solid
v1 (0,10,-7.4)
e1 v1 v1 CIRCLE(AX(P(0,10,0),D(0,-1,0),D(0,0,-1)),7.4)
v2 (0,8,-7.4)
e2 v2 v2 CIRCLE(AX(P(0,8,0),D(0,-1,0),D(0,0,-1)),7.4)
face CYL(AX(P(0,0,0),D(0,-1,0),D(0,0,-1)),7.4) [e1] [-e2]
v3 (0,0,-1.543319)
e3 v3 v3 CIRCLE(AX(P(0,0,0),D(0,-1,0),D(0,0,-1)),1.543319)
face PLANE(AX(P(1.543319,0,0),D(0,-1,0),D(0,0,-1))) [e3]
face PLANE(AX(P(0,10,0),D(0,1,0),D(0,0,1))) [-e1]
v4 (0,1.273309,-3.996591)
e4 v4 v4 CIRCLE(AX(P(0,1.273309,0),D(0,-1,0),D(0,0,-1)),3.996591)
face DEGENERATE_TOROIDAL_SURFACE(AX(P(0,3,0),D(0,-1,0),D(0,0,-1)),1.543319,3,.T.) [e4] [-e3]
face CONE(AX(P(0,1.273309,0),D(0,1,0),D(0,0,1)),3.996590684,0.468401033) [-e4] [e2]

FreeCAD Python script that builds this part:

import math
import FreeCAD as App
import Part
import Sketcher

doc = App.newDocument("Part")
params = doc.addObject("Spreadsheet::Sheet", "Params")
for row, (alias, value) in enumerate([
    ("sketch1_radius", "3 mm"),
    ("sketch1_height", "10 mm"),
    ("sketch1_height2", "2 mm"),
    ("sketch1_width", "7.4 mm"),
    ("revolution_angle", "360 deg"),
], start=1):
    params.set(f"A{row}", alias)
    params.set(f"B{row}", "=" + value)
    params.setAlias(f"B{row}", alias)

body = doc.addObject("PartDesign::Body", "Body")

sketch1 = body.newObject("Sketcher::SketchObject", "Sketch")
sketch1.AttachmentSupport = (doc.getObject("XY_Plane"), [""])
sketch1.MapMode = "FlatFace"
sketch1.addGeometry(Part.LineSegment(App.Vector(0, 10, 0), App.Vector(0, 0, 0)), False)
sketch1.addGeometry(Part.LineSegment(App.Vector(0, 0, 0), App.Vector(1.543319, 0, 0)), False)
sketch1.addGeometry(Part.ArcOfCircle(Part.Circle(App.Vector(1.543319, 3, 0), App.Vector(0, 0, 1), 3), math.radians(-90), math.radians(-35.139105)), False)
sketch1.addGeometry(Part.LineSegment(App.Vector(3.996591, 1.273309, 0), App.Vector(7.4, 8, 0)), False)
sketch1.addGeometry(Part.LineSegment(App.Vector(7.4, 8, 0), App.Vector(7.4, 10, 0)), False)
sketch1.addGeometry(Part.LineSegment(App.Vector(7.4, 10, 0), App.Vector(0, 10, 0)), False)
sketch1.addConstraint(Sketcher.Constraint("Coincident", 0, 2, 1, 1))
sketch1.addConstraint(Sketcher.Constraint("Tangent", 1, 2, 2, 1))
sketch1.addConstraint(Sketcher.Constraint("Coincident", 2, 2, 3, 1))
sketch1.addConstraint(Sketcher.Constraint("Coincident", 3, 2, 4, 1))
sketch1.addConstraint(Sketcher.Constraint("Coincident", 4, 2, 5, 1))
sketch1.addConstraint(Sketcher.Constraint("Coincident", 5, 2, 0, 1))
sketch1.addConstraint(Sketcher.Constraint("Vertical", 0))
sketch1.addConstraint(Sketcher.Constraint("Horizontal", 1))
sketch1.addConstraint(Sketcher.Constraint("Vertical", 4))
sketch1.addConstraint(Sketcher.Constraint("Horizontal", 5))
sketch1.addConstraint(Sketcher.Constraint("Coincident", 0, 2, -1, 1))
sketch1.addConstraint(Sketcher.Constraint("Radius", 2, 3.0))
sketch1.addConstraint(Sketcher.Constraint("DistanceY", 0, 2, 0, 1, 10.0))
sketch1.addConstraint(Sketcher.Constraint("DistanceY", 4, 1, 4, 2, 2.0))
sketch1.addConstraint(Sketcher.Constraint("DistanceX", 5, 2, 5, 1, 7.4))
sketch1.addConstraint(Sketcher.Constraint("DistanceX", 1, 1, 1, 2, 1.543319))
sketch1.addConstraint(Sketcher.Constraint("Distance", 3, 7.538671))
sketch1.setExpression("Constraints[11]", "Params.sketch1_radius")
sketch1.setExpression("Constraints[12]", "Params.sketch1_height")
sketch1.setExpression("Constraints[13]", "Params.sketch1_height2")
sketch1.setExpression("Constraints[14]", "Params.sketch1_width")
revolution = body.newObject("PartDesign::Revolution", "Revolution")
revolution.Profile = sketch1
revolution.ReferenceAxis = (sketch1, ["V_Axis"])
revolution.setExpression("Angle", "Params.revolution_angle")

doc.recompute()
